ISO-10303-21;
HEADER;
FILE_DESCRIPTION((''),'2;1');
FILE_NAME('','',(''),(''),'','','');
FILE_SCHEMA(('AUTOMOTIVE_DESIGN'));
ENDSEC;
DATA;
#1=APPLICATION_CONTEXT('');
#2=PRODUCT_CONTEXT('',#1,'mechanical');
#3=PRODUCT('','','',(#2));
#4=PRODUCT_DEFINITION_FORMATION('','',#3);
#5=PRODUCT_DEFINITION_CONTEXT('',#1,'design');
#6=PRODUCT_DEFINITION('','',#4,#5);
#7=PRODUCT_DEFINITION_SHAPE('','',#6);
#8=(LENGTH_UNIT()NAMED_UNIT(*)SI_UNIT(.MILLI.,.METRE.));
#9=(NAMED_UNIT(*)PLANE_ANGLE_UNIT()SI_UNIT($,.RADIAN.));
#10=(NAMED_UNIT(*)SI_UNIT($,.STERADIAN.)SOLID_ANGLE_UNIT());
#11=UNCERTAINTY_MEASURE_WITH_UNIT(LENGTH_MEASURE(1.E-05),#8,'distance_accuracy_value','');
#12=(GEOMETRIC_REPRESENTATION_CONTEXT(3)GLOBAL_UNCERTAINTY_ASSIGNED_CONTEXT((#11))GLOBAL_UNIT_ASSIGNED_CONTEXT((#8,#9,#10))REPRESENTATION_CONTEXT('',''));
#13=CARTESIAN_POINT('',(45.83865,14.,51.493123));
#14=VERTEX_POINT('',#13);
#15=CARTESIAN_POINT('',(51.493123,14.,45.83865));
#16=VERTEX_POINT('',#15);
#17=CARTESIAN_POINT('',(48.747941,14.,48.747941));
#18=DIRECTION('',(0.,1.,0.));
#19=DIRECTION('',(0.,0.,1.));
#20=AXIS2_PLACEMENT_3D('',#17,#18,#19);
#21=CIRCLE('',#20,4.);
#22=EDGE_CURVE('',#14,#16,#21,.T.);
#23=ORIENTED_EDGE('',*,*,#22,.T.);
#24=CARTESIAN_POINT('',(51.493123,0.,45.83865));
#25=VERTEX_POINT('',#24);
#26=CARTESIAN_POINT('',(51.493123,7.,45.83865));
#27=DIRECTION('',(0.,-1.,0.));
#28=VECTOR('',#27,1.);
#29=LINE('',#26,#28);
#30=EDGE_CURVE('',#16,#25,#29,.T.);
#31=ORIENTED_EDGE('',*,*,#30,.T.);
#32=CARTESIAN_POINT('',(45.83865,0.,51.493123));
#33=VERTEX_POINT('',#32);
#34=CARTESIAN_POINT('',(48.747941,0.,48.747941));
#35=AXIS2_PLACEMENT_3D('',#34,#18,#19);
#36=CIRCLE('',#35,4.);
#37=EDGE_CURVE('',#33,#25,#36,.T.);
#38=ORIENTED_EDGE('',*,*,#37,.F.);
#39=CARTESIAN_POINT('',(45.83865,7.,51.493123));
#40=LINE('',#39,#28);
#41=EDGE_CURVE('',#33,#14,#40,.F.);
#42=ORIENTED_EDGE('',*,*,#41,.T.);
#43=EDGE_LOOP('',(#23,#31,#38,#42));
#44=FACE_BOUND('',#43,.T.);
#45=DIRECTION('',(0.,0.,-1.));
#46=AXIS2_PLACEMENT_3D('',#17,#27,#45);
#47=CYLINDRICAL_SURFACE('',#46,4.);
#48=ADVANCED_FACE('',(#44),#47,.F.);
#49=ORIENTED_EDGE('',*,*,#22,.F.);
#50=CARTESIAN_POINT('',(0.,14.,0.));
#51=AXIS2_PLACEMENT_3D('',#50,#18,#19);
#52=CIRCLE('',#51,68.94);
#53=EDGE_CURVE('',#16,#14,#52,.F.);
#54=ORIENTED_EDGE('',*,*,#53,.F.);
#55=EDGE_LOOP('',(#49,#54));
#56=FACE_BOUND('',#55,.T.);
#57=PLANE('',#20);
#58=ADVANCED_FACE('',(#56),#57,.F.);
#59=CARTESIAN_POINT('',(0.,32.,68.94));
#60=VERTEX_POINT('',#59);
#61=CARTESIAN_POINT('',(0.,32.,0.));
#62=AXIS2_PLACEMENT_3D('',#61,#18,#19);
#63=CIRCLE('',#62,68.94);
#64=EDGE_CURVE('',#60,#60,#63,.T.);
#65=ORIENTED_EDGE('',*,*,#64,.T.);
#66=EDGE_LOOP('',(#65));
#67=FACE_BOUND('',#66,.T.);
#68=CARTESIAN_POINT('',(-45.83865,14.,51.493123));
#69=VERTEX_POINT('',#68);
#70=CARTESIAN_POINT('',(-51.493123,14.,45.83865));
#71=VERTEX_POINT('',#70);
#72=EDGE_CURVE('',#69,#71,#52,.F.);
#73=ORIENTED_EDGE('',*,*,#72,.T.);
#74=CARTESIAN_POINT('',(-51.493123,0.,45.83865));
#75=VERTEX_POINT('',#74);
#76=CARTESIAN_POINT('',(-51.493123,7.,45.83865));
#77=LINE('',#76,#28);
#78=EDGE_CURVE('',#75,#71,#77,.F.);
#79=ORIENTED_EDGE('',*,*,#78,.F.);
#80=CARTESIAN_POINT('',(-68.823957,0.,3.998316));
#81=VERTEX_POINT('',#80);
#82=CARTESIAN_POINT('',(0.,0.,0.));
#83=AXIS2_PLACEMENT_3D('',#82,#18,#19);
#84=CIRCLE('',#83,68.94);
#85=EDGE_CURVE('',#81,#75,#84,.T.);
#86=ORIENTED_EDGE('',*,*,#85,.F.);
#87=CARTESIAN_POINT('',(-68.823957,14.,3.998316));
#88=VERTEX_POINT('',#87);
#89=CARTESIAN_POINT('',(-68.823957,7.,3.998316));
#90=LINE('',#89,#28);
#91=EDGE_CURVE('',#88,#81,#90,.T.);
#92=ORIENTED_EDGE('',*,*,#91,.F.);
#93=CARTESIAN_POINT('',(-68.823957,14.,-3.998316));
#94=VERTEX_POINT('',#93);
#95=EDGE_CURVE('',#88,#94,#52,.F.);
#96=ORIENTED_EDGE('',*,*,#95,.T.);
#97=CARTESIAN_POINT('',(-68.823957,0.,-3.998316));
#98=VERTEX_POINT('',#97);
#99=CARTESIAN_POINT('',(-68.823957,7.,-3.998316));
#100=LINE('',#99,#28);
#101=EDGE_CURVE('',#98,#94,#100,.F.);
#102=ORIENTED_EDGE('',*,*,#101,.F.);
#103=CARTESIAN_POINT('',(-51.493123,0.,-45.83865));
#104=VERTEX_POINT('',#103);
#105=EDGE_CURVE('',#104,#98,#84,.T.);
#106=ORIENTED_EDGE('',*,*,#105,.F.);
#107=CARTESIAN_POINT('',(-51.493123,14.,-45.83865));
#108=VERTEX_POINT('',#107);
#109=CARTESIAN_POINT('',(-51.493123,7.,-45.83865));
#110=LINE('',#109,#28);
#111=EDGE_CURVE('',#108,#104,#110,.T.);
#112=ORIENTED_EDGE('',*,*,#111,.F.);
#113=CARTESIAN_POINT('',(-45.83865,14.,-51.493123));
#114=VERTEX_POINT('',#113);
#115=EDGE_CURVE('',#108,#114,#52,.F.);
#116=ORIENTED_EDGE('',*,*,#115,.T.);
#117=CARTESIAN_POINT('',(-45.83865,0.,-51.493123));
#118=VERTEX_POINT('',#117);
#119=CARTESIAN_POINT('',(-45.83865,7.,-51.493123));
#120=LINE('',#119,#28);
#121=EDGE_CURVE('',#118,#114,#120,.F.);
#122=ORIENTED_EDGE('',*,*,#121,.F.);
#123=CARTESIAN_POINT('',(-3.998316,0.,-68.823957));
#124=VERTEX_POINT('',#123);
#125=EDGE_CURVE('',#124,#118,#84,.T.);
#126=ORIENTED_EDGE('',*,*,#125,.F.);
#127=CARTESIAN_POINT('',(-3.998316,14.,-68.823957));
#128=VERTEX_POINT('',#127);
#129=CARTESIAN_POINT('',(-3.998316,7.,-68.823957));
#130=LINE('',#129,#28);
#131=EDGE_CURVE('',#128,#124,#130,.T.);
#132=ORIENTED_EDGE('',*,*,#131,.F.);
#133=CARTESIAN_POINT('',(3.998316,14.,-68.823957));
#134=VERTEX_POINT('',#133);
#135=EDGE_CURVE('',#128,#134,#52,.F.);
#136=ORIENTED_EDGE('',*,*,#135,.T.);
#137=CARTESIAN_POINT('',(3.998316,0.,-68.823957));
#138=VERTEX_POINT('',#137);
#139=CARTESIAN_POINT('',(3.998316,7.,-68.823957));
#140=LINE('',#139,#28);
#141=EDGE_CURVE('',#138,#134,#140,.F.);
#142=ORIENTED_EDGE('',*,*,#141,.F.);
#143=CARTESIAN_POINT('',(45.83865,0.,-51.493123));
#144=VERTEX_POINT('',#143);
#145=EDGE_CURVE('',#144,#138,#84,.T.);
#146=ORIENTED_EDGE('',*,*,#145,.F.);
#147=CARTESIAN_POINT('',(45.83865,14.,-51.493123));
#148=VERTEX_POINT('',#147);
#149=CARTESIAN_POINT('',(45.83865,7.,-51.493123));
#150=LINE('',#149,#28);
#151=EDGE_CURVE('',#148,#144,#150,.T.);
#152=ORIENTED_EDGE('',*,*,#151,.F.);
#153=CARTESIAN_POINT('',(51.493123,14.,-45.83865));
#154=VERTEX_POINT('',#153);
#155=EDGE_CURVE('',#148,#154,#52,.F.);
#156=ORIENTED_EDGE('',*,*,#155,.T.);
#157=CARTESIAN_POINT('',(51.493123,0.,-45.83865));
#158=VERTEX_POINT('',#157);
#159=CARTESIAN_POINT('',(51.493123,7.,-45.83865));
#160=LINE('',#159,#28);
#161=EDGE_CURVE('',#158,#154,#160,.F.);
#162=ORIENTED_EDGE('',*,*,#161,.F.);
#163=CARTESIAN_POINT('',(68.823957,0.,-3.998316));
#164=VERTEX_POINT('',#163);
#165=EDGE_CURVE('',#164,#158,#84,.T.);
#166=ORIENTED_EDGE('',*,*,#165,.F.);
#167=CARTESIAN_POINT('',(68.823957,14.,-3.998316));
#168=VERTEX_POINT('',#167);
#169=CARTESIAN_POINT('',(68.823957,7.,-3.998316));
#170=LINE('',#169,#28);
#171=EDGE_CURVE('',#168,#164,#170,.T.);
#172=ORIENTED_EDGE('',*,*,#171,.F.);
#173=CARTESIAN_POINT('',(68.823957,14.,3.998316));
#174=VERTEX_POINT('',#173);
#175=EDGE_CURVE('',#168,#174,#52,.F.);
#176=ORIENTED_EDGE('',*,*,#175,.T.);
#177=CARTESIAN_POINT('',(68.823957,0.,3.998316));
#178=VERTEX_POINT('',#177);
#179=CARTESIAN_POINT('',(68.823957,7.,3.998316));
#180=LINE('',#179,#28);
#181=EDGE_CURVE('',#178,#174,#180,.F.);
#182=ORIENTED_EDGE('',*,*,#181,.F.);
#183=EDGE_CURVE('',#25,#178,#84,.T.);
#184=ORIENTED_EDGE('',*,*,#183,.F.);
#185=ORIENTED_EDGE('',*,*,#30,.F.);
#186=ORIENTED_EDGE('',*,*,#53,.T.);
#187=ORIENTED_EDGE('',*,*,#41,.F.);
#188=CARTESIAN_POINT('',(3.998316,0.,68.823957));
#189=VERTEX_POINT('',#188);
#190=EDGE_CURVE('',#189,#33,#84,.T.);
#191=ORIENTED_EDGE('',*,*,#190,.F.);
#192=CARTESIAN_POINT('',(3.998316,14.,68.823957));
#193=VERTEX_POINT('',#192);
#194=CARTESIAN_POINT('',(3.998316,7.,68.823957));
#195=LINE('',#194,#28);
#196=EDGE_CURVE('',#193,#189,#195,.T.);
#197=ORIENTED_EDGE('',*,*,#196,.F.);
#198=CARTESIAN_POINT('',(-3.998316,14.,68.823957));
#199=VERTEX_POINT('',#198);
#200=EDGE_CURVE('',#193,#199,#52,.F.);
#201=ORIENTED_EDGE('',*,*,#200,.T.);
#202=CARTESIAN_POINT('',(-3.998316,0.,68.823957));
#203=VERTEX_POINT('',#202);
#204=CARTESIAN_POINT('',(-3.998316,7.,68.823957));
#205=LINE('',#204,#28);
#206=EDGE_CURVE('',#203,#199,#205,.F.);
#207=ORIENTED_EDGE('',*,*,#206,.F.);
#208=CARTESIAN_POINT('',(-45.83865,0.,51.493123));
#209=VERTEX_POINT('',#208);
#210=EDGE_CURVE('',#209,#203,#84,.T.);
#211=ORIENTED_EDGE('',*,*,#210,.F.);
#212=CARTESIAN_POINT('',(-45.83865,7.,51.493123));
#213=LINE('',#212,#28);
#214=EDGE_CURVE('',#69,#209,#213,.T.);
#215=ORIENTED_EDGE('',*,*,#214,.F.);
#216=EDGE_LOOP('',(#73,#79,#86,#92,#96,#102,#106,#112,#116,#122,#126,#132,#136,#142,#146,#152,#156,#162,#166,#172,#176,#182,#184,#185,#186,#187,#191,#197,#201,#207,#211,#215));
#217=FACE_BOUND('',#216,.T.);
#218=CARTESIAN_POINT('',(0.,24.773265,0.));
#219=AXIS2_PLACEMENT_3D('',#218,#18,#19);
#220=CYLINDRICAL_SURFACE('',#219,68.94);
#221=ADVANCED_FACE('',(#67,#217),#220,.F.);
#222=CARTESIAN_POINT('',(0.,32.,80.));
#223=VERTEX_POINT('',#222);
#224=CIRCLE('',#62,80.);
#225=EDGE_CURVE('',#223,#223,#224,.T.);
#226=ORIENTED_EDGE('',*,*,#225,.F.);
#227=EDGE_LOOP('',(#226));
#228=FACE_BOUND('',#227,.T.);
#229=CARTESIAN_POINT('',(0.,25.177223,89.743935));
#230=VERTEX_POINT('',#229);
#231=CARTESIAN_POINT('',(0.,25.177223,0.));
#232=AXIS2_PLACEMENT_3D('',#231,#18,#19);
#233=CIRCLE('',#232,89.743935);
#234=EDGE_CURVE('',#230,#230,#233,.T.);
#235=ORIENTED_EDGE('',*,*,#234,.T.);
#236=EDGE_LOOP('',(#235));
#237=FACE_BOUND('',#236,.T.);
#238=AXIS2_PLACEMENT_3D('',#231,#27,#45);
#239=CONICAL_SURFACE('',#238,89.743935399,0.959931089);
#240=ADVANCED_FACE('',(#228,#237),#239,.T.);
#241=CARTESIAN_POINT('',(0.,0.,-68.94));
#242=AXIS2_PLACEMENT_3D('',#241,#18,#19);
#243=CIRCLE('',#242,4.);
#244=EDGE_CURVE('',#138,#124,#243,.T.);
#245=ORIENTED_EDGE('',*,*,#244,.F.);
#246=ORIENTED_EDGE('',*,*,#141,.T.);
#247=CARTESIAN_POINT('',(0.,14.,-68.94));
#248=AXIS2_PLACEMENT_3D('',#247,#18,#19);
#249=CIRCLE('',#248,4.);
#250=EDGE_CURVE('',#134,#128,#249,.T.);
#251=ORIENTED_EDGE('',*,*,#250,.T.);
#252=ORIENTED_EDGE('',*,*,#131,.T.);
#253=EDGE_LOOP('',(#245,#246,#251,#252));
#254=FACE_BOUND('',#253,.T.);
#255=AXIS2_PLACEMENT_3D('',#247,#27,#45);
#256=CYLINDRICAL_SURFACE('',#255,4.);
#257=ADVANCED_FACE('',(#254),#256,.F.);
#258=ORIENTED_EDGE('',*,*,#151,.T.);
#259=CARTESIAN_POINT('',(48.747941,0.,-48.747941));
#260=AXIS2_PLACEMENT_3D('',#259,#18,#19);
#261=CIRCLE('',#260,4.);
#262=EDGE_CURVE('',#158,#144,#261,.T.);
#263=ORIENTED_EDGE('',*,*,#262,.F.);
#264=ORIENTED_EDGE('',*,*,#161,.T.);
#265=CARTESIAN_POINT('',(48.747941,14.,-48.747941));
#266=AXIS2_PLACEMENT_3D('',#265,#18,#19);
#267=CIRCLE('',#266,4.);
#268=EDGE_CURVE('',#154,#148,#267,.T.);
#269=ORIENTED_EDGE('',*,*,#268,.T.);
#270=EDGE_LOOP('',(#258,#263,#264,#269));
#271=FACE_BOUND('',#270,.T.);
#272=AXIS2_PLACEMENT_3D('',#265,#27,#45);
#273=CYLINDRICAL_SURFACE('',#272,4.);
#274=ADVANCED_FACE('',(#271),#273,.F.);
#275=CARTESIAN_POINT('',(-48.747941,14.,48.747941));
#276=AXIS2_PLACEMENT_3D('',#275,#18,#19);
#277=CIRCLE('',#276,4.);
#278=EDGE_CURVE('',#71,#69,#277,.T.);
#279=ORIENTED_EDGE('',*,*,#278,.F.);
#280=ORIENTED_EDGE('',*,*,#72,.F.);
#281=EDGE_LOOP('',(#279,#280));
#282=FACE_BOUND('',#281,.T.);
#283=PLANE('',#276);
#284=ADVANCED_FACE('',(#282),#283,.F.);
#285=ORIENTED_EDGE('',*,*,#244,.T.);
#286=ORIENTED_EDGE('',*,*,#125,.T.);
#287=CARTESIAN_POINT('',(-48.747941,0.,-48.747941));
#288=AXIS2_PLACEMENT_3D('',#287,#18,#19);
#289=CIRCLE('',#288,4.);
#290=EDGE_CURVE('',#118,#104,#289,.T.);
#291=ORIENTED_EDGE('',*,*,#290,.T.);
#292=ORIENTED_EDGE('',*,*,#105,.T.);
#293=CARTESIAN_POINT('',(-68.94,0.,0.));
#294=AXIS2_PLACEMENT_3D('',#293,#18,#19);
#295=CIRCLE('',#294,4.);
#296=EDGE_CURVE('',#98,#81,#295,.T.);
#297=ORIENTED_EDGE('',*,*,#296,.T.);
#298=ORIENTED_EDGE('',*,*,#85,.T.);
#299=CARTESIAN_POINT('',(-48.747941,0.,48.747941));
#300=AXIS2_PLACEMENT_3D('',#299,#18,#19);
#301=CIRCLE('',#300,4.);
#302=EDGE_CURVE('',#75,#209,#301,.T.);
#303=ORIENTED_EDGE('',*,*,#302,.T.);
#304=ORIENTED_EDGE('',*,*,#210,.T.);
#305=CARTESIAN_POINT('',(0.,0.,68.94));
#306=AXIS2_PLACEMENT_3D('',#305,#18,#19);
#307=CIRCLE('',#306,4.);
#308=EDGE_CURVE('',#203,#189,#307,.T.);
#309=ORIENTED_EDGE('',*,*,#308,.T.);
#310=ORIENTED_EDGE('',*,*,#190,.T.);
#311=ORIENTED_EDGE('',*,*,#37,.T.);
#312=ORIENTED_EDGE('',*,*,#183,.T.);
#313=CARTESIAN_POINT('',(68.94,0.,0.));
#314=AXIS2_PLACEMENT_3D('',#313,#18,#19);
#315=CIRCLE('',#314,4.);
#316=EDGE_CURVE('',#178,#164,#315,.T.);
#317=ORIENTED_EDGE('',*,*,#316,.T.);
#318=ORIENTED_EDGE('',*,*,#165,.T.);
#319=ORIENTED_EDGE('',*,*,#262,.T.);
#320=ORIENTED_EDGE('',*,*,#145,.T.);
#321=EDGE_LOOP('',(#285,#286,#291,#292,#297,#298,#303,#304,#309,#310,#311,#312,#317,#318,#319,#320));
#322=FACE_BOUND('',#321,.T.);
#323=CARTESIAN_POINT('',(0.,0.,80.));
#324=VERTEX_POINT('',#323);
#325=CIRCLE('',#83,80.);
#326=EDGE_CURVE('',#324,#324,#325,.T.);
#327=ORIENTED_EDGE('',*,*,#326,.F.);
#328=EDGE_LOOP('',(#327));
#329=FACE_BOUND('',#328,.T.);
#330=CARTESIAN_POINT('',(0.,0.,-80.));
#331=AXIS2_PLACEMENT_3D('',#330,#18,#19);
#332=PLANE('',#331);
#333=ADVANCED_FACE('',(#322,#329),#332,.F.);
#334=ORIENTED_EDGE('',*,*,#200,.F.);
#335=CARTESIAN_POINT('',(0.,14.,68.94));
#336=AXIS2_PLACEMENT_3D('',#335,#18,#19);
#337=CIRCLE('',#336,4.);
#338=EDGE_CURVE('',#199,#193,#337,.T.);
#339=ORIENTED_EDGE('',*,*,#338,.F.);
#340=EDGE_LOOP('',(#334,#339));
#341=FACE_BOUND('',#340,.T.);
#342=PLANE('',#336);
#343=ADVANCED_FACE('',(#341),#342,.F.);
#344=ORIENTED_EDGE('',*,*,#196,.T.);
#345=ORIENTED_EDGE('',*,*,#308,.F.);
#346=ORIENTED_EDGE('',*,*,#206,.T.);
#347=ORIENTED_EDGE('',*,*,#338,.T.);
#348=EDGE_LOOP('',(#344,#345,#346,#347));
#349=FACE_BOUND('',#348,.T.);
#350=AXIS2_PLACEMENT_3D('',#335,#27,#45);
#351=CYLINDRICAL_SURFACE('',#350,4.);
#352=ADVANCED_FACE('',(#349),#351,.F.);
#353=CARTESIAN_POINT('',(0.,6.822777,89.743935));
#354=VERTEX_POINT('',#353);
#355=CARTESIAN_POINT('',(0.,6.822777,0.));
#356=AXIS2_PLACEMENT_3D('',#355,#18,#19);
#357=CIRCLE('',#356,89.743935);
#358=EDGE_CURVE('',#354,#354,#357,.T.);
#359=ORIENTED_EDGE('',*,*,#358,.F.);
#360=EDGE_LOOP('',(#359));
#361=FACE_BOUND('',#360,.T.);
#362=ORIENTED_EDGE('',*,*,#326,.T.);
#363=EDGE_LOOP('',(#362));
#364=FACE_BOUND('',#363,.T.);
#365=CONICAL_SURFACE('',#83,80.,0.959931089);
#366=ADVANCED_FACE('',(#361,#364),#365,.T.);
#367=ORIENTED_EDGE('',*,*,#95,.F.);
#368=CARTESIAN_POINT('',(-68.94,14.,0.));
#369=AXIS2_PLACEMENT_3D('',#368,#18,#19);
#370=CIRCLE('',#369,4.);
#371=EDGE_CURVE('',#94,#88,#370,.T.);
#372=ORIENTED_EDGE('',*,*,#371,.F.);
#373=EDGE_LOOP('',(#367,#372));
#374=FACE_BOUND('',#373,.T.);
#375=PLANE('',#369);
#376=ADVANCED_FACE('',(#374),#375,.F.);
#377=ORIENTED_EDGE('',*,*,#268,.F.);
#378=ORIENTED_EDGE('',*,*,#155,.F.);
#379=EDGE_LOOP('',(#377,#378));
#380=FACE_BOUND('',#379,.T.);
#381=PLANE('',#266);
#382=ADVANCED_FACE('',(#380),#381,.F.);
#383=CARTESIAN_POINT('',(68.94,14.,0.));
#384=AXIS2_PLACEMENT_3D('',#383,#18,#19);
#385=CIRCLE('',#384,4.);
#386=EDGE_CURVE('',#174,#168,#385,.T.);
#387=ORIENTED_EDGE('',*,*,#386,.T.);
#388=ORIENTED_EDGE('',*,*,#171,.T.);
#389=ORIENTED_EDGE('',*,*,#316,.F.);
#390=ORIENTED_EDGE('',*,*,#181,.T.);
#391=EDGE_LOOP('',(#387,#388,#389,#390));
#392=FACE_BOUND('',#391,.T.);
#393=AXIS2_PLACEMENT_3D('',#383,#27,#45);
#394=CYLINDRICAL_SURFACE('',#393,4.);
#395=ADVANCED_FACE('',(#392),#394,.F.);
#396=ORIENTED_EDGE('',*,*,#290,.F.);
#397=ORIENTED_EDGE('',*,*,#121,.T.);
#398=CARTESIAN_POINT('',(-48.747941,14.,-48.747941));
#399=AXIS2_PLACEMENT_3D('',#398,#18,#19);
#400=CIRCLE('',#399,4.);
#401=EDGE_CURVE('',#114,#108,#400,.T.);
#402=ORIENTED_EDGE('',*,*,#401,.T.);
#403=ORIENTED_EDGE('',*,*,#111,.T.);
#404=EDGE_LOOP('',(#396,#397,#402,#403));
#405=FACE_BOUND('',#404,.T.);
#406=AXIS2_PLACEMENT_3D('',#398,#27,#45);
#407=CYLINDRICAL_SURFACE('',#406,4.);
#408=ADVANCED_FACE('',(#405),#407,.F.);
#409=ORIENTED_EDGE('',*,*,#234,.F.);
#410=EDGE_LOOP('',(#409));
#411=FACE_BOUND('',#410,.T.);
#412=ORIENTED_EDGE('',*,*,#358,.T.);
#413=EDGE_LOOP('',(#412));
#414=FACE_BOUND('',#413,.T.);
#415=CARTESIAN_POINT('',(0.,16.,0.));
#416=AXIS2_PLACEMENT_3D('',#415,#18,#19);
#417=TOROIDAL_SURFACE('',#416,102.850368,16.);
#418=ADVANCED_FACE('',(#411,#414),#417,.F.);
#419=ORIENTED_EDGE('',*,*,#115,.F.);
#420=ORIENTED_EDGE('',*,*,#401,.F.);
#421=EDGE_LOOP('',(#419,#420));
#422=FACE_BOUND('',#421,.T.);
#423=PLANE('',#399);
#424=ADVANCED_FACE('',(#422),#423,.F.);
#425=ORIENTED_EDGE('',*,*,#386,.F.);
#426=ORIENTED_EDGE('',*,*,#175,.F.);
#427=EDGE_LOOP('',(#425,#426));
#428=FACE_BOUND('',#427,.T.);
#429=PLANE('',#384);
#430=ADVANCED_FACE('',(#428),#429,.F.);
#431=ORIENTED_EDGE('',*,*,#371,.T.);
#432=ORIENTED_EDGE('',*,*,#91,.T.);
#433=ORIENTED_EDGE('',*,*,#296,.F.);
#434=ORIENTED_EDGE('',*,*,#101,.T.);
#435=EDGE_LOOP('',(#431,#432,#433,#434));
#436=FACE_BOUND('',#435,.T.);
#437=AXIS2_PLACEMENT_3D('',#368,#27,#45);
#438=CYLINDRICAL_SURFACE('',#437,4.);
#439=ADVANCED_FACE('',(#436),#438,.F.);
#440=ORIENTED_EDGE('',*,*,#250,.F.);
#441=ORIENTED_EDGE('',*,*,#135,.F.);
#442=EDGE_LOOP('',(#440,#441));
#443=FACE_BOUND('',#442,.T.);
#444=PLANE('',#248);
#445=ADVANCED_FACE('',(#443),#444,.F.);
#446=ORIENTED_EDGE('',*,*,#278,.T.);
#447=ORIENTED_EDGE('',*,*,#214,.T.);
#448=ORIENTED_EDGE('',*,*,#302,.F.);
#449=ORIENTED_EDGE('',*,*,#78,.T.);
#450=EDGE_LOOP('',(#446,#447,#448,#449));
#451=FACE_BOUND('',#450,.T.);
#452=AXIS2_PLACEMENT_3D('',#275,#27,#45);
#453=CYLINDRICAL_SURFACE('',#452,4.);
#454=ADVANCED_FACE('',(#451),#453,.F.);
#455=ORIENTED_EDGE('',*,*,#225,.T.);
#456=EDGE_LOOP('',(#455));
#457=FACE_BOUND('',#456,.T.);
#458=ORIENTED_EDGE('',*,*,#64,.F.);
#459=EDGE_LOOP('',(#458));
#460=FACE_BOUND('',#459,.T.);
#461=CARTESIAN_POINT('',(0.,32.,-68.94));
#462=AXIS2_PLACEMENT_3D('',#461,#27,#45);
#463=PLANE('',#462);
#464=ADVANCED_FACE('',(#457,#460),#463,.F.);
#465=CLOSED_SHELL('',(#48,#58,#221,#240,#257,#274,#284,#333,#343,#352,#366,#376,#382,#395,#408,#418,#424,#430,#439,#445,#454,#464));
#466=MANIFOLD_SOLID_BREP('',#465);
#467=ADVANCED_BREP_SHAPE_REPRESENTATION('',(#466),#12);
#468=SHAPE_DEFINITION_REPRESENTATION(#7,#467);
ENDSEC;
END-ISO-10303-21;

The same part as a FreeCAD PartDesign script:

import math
import FreeCAD as App
import Part
import Sketcher
Q = App.Units.Quantity

doc = App.newDocument("Part")
body = doc.addObject("PartDesign::Body", "Body")

# Sketch on YZ plane
sketch1 = doc.addObject("Sketcher::SketchObject", "Sketch")
body.addObject(sketch1)
sketch1.AttachmentSupport = (doc.YZ_Plane, [""])
sketch1.MapMode = "FlatFace"
sketch1.addGeometry([
    Part.LineSegment(App.Vector(32, -69, 0), App.Vector(0, -69, 0)),  # 0
    Part.LineSegment(App.Vector(0, -69, 0), App.Vector(0, -80, 0)),  # 1
    Part.LineSegment(App.Vector(0, -80, 0), App.Vector(7, -90, 0)),  # 2
    Part.ArcOfCircle(Part.Circle(App.Vector(16, -103, 0), App.Vector(0, 0, 1), 16), math.radians(55), math.radians(125)),  # 3
    Part.LineSegment(App.Vector(25, -90, 0), App.Vector(32, -80, 0)),  # 4
    Part.LineSegment(App.Vector(32, -80, 0), App.Vector(32, -69, 0)),  # 5
], False)
sketch1.addConstraint([
    Sketcher.Constraint("Coincident", 0, 2, 1, 1),
    Sketcher.Constraint("Coincident", 1, 2, 2, 1),
    Sketcher.Constraint("Coincident", 2, 2, 3, 2),
    Sketcher.Constraint("Coincident", 3, 1, 4, 1),
    Sketcher.Constraint("Coincident", 4, 2, 5, 1),
    Sketcher.Constraint("Coincident", 5, 2, 0, 1),
    Sketcher.Constraint("Horizontal", 0),
    Sketcher.Constraint("Vertical", 1),
    Sketcher.Constraint("Vertical", 5),
    Sketcher.Constraint("PointOnObject", 0, 2, -2),
    Sketcher.Constraint("Horizontal", 2, 2, 3, 1),
    Sketcher.Constraint("Horizontal", 1, 2, 4, 2),
    Sketcher.Constraint("Equal", 2, 4),
    Sketcher.Constraint("Radius", 3, 16.0),
    Sketcher.Constraint("DistanceX", 0, 2, 0, 1, 32.0),
    Sketcher.Constraint("Angle", 2, Q("-55 deg")),
    Sketcher.Constraint("DistanceY", 1, 2, -1, 1, 80.0),
    Sketcher.Constraint("DistanceY", 1, 2, 1, 1, 11.06),
    Sketcher.Constraint("Distance", 2, 11.895149),
])
revolution = doc.addObject("PartDesign::Revolution", "Revolution")
body.addObject(revolution)
revolution.Profile = sketch1
revolution.ReferenceAxis = (sketch1, ["H_Axis"])
revolution.Angle = 360

# Sketch on XZ plane
sketch2 = doc.addObject("Sketcher::SketchObject", "Sketch001")
body.addObject(sketch2)
sketch2.AttachmentSupport = (doc.XZ_Plane, [""])
sketch2.MapMode = "FlatFace"
sketch2.addGeometry([
    Part.Circle(App.Vector(0, -68.9, 0), App.Vector(0, 0, 1), 4),  # 0
    Part.Circle(App.Vector(48.7, -48.7, 0), App.Vector(0, 0, 1), 4),  # 1
    Part.Circle(App.Vector(68.9, 0, 0), App.Vector(0, 0, 1), 4),  # 2
    Part.Circle(App.Vector(48.7, 48.7, 0), App.Vector(0, 0, 1), 4),  # 3
    Part.Circle(App.Vector(0, 68.9, 0), App.Vector(0, 0, 1), 4),  # 4
    Part.Circle(App.Vector(-48.7, 48.7, 0), App.Vector(0, 0, 1), 4),  # 5
    Part.Circle(App.Vector(-68.9, 0, 0), App.Vector(0, 0, 1), 4),  # 6
    Part.Circle(App.Vector(-48.7, -48.7, 0), App.Vector(0, 0, 1), 4),  # 7
], False)
sketch2.addConstraint([
    Sketcher.Constraint("Equal", 0, 1),
    Sketcher.Constraint("Equal", 1, 2),
    Sketcher.Constraint("Equal", 2, 3),
    Sketcher.Constraint("Equal", 3, 4),
    Sketcher.Constraint("Equal", 4, 5),
    Sketcher.Constraint("Equal", 5, 6),
    Sketcher.Constraint("Equal", 6, 7),
    Sketcher.Constraint("Symmetric", 0, 3, 4, 3, -1, 1),
    Sketcher.Constraint("Symmetric", 1, 3, 5, 3, -1, 1),
    Sketcher.Constraint("Symmetric", 2, 3, 6, 3, -1, 1),
    Sketcher.Constraint("Symmetric", 3, 3, 7, 3, -1, 1),
    Sketcher.Constraint("Symmetric", 3, 3, 5, 3, -2),
    Sketcher.Constraint("PointOnObject", 0, 3, -2),
    Sketcher.Constraint("PointOnObject", 2, 3, -1),
    Sketcher.Constraint("Diameter", 0, 8.0),
    Sketcher.Constraint("DistanceY", 0, 3, -1, 1, 68.94),
    Sketcher.Constraint("DistanceX", -1, 1, 2, 3, 68.94),
    Sketcher.Constraint("DistanceX", -1, 1, 1, 3, 48.747941),
    Sketcher.Constraint("DistanceY", 1, 3, -1, 1, 48.747941),
])
pocket1 = doc.addObject("PartDesign::Pocket", "Pocket")
body.addObject(pocket1)
pocket1.Profile = sketch2
pocket1.Length = 14

doc.recompute()
